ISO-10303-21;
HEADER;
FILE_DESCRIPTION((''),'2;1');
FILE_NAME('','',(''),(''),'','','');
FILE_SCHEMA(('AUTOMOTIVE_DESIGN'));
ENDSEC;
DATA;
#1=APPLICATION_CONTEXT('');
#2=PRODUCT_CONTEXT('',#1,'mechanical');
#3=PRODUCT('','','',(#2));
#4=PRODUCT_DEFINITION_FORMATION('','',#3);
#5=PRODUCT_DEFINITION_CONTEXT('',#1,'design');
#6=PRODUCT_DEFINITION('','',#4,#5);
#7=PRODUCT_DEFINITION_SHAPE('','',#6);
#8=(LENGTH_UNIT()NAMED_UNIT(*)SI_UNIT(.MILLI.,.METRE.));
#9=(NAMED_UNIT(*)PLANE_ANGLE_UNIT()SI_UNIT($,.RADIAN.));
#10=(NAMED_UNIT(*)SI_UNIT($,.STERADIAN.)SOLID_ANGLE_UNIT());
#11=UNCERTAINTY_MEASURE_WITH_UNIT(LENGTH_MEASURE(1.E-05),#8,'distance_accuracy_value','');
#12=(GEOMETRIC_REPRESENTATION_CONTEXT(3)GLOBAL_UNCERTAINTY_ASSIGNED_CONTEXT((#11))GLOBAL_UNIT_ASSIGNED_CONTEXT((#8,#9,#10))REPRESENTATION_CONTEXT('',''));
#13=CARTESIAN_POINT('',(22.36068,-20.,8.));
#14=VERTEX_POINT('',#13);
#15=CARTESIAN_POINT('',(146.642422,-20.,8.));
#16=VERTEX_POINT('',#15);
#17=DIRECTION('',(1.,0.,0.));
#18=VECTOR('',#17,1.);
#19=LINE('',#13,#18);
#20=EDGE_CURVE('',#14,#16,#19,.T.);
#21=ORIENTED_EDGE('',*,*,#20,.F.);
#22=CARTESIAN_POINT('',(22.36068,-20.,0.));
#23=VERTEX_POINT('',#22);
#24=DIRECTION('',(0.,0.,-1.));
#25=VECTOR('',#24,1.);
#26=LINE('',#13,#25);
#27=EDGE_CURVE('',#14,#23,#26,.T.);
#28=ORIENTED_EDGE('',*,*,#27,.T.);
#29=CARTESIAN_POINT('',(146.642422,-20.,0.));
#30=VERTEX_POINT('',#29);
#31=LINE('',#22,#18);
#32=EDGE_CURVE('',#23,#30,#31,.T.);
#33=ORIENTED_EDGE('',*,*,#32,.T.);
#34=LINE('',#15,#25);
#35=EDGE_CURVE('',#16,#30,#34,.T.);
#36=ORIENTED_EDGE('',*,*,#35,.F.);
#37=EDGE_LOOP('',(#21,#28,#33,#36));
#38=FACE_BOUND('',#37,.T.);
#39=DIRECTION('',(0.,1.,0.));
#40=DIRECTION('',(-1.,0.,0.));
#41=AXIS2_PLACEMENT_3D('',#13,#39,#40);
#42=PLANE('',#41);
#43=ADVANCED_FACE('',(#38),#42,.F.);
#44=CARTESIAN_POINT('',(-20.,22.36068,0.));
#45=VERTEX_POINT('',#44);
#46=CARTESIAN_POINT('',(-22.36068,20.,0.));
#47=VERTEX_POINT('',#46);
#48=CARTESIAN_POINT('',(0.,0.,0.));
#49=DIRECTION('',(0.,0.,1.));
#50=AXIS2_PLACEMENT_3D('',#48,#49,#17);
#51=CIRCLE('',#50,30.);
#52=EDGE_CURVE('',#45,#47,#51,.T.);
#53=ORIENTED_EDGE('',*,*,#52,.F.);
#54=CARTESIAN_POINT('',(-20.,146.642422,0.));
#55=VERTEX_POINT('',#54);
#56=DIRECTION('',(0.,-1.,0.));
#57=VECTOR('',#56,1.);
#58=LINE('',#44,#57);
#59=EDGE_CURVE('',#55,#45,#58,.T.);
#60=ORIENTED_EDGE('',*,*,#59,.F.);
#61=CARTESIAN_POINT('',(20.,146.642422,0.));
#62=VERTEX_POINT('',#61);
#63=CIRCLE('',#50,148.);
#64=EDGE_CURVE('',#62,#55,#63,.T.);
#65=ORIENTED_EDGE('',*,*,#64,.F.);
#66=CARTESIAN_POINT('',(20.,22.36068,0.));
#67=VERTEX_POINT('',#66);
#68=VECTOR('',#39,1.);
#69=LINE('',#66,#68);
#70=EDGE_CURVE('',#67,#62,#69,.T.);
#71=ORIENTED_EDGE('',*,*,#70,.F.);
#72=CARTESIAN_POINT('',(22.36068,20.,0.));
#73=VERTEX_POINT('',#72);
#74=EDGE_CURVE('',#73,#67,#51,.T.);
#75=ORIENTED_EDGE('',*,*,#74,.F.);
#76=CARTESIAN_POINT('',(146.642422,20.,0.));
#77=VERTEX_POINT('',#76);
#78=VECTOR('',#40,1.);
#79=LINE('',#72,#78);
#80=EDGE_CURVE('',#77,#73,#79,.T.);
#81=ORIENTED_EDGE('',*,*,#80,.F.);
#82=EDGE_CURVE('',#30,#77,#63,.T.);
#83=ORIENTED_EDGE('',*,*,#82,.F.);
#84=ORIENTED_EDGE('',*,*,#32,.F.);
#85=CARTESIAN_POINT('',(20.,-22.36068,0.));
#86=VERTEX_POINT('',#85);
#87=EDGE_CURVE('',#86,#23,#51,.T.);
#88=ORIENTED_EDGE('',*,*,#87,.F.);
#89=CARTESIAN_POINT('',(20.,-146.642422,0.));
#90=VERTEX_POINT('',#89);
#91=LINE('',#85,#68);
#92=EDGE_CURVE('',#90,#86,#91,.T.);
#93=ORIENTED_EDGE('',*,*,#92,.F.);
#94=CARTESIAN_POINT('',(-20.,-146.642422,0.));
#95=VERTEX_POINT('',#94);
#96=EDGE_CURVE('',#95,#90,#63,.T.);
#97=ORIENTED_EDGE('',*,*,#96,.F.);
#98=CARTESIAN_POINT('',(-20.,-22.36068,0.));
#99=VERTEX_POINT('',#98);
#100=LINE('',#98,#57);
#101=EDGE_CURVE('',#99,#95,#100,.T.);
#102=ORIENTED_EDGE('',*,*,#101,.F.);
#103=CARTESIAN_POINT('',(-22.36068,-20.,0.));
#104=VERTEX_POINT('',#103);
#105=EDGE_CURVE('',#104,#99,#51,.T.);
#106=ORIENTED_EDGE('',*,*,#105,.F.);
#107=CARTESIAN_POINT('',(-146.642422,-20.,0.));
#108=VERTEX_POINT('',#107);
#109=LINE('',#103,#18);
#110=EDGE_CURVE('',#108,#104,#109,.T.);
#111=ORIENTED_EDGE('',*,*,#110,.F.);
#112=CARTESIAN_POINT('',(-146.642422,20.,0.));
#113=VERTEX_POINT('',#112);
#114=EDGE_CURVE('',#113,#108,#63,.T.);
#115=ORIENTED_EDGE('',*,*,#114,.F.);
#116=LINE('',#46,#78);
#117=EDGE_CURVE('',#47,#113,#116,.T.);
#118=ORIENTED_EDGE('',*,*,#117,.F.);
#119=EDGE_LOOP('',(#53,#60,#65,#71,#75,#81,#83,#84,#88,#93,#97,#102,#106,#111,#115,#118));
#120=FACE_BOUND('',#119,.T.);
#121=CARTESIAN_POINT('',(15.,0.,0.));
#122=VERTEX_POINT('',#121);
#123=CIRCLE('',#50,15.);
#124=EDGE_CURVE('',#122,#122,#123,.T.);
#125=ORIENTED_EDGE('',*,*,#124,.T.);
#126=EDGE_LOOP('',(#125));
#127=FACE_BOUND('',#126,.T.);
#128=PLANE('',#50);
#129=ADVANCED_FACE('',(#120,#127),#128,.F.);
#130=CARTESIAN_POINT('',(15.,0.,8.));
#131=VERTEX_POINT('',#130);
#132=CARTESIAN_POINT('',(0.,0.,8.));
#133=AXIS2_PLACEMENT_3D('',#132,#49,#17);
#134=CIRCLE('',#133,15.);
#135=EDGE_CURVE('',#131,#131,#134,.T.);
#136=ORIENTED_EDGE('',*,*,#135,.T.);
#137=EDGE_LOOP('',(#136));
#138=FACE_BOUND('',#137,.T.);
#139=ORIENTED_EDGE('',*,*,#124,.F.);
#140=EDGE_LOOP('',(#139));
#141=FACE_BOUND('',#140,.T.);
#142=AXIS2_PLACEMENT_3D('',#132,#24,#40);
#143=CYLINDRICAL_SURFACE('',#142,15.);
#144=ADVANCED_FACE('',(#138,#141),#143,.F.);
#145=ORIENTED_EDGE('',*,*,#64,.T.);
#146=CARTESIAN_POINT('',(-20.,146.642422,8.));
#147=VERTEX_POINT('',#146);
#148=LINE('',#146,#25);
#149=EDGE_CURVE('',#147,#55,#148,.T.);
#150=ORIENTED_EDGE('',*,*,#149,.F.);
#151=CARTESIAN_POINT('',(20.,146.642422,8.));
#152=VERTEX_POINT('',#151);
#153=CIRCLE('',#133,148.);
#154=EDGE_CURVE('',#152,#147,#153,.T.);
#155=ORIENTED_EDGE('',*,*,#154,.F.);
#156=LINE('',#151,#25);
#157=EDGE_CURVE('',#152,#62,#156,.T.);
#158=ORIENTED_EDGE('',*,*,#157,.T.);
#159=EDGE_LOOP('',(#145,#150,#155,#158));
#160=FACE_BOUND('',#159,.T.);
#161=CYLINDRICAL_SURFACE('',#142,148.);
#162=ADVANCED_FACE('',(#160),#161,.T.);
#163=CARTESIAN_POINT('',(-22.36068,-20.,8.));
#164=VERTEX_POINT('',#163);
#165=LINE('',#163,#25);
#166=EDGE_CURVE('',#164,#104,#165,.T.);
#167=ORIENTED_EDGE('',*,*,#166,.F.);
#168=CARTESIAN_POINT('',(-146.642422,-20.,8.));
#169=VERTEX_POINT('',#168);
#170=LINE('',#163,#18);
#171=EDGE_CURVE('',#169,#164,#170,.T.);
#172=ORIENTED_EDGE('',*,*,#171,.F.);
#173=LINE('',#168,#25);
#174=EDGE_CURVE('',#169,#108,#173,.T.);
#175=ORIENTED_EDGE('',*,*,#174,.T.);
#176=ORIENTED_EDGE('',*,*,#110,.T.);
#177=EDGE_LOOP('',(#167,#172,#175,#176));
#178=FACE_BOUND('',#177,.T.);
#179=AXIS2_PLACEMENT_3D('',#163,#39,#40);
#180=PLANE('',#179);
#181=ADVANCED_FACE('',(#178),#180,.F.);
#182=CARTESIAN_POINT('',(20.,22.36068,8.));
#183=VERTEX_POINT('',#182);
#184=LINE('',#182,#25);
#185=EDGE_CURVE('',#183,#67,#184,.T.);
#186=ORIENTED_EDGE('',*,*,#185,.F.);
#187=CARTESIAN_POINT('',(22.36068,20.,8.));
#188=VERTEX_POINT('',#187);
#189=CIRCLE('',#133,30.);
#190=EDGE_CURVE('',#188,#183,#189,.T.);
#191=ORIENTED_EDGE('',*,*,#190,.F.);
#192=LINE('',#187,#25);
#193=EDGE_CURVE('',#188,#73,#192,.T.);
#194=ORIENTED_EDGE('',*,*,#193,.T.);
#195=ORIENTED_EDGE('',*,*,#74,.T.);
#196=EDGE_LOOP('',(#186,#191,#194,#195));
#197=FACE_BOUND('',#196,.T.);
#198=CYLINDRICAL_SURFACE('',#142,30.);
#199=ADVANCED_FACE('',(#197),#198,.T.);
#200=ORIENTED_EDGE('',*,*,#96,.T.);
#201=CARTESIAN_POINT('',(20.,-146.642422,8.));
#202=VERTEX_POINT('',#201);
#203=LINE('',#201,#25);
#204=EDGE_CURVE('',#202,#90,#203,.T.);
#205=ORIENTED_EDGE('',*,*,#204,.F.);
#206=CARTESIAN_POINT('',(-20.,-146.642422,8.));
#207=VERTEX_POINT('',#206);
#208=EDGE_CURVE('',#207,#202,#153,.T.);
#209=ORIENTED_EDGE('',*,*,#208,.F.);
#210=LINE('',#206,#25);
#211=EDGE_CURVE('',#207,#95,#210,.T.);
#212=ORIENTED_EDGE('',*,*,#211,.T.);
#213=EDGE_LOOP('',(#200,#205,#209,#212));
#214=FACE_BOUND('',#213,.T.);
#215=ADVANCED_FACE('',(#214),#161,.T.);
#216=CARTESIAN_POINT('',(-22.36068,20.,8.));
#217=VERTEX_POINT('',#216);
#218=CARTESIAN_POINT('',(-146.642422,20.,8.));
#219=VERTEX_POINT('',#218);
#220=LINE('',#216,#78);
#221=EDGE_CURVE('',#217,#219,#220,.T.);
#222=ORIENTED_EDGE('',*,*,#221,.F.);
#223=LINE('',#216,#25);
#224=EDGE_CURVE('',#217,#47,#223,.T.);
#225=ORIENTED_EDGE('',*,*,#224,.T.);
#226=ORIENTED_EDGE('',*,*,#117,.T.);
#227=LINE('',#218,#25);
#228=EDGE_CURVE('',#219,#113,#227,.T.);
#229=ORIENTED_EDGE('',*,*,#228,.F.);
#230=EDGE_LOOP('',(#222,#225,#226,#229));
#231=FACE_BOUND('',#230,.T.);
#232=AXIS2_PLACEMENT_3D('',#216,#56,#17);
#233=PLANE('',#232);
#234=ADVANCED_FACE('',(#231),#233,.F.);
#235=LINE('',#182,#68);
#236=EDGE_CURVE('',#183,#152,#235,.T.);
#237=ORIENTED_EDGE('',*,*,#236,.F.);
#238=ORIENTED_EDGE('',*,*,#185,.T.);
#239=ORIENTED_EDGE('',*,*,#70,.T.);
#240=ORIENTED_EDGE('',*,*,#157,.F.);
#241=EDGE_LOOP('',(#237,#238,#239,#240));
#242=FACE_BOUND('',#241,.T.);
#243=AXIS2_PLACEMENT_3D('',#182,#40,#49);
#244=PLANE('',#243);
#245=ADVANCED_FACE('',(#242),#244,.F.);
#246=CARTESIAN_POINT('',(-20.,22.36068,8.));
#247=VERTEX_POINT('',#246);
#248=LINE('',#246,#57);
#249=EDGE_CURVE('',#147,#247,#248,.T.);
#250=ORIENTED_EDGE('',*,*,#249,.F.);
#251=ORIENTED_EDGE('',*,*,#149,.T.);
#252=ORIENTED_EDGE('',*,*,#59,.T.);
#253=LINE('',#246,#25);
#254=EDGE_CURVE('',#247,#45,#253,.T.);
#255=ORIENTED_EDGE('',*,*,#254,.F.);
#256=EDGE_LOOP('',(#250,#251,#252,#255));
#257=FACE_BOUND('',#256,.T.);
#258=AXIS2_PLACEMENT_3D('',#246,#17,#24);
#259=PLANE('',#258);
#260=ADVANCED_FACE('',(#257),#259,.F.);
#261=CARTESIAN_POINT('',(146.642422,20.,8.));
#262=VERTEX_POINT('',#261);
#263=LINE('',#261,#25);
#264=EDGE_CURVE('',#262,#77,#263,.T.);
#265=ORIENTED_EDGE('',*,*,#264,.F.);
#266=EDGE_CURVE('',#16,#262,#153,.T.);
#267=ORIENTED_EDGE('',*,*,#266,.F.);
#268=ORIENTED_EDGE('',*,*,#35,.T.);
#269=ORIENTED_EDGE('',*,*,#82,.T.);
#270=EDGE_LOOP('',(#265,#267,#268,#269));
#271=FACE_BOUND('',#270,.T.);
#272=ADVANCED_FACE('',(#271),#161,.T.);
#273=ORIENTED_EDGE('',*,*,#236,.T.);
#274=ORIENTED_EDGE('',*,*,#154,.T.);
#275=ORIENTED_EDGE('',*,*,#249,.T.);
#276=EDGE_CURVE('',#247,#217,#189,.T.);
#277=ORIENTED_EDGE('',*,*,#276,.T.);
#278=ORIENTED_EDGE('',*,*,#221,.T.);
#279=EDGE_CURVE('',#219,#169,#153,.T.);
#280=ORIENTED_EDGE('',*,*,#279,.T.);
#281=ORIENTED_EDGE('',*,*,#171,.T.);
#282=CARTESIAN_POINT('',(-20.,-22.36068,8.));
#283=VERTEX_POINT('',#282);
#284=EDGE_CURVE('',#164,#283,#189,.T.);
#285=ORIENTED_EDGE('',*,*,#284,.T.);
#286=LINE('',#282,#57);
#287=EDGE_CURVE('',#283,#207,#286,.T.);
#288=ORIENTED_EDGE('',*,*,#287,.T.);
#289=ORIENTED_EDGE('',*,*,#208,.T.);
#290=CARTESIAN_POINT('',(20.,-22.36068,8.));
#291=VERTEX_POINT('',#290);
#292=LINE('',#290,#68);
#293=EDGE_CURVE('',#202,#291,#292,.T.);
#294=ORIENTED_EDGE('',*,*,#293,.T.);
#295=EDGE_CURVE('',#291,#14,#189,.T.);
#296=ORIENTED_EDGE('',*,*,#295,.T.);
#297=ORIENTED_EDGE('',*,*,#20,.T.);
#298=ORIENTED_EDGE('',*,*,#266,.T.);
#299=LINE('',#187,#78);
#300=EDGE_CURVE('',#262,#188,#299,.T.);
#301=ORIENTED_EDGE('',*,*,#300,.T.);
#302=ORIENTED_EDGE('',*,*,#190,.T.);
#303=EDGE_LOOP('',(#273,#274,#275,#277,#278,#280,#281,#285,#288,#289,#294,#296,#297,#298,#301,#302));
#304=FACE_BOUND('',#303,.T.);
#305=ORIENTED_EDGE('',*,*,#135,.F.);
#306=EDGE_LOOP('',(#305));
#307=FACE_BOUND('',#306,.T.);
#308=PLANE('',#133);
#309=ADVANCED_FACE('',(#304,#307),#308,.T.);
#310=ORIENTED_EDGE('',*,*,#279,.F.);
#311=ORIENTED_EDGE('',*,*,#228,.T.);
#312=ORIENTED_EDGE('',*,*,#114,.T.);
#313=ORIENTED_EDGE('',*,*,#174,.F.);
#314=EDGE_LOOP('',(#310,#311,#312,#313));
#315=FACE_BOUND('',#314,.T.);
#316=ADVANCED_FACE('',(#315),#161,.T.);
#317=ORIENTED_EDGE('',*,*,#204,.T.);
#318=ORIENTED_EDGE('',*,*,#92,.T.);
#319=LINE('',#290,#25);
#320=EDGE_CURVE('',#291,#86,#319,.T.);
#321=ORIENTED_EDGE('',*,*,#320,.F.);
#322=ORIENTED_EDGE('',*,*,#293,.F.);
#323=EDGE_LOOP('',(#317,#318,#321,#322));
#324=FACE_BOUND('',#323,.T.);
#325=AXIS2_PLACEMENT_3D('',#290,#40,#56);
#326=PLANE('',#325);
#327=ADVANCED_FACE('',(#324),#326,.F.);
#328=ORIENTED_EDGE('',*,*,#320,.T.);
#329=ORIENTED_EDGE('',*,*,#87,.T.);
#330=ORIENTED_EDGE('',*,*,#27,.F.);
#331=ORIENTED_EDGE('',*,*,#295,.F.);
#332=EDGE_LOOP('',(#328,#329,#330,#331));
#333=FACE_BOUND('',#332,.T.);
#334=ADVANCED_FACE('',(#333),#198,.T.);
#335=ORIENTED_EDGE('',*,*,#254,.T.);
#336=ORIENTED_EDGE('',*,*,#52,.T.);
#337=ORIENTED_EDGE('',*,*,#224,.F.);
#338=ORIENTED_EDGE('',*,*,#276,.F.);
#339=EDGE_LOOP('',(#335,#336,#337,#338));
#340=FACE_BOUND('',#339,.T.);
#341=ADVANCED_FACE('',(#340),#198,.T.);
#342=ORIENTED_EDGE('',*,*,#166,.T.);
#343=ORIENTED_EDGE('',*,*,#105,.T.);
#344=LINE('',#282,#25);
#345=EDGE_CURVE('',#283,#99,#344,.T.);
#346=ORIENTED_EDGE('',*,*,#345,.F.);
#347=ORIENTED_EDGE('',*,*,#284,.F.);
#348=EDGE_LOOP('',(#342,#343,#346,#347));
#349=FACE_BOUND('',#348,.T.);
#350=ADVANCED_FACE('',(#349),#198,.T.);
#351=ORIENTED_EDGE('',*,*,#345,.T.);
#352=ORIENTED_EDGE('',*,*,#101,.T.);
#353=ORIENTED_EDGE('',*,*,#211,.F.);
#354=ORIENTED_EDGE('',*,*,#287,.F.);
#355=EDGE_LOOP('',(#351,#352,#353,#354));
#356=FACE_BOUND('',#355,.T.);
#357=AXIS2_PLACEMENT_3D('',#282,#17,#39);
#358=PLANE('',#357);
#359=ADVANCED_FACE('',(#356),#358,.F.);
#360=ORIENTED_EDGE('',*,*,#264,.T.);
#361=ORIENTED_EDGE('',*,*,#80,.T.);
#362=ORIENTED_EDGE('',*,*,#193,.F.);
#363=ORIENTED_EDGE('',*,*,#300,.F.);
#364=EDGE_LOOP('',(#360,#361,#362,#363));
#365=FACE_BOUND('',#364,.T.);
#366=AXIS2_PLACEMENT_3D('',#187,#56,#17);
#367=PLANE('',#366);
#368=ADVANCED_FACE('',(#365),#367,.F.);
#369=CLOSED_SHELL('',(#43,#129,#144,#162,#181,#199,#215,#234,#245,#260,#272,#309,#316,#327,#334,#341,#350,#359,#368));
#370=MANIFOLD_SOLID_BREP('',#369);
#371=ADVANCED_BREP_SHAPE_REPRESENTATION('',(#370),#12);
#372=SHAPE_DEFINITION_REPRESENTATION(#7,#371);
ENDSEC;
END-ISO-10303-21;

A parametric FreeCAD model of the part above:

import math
import FreeCAD as App
import Part
import Sketcher
from FreeCAD import Vector
Q = App.Units.Quantity

doc = App.newDocument("Part")
body = doc.addObject("PartDesign::Body", "Body")

# Sketch on XY plane
sketch1 = doc.addObject("Sketcher::SketchObject", "Sketch")
body.addObject(sketch1)
sketch1.AttachmentSupport = (doc.XY_Plane, [""])
sketch1.MapMode = "FlatFace"
sketch1.addGeometry(Part.LineSegment(Vector(20, 22.4, 0), Vector(20, 146.6, 0)), False)
sketch1.addGeometry(Part.ArcOfCircle(Part.Circle(Vector(0, 0, 0), Vector(0, 0, 1), 148), math.radians(82.23), math.radians(97.77)), False)
sketch1.addGeometry(Part.LineSegment(Vector(-20, 146.6, 0), Vector(-20, 22.4, 0)), False)
sketch1.addGeometry(Part.ArcOfCircle(Part.Circle(Vector(0, 0, 0), Vector(0, 0, 1), 30), math.radians(131.81), math.radians(138.19)), False)
sketch1.addGeometry(Part.LineSegment(Vector(-22.4, 20, 0), Vector(-146.6, 20, 0)), False)
sketch1.addGeometry(Part.ArcOfCircle(Part.Circle(Vector(0, 0, 0), Vector(0, 0, 1), 148), math.radians(172.23), math.radians(187.77)), False)
sketch1.addGeometry(Part.LineSegment(Vector(-146.6, -20, 0), Vector(-22.4, -20, 0)), False)
sketch1.addGeometry(Part.ArcOfCircle(Part.Circle(Vector(0, 0, 0), Vector(0, 0, 1), 30), math.radians(-138.19), math.radians(-131.81)), False)
sketch1.addGeometry(Part.LineSegment(Vector(-20, -22.4, 0), Vector(-20, -146.6, 0)), False)
sketch1.addGeometry(Part.ArcOfCircle(Part.Circle(Vector(0, 0, 0), Vector(0, 0, 1), 148), math.radians(-97.77), math.radians(-82.23)), False)
sketch1.addGeometry(Part.LineSegment(Vector(20, -146.6, 0), Vector(20, -22.4, 0)), False)
sketch1.addGeometry(Part.ArcOfCircle(Part.Circle(Vector(0, 0, 0), Vector(0, 0, 1), 30), math.radians(-48.19), math.radians(-41.81)), False)
sketch1.addGeometry(Part.LineSegment(Vector(22.4, -20, 0), Vector(146.6, -20, 0)), False)
sketch1.addGeometry(Part.ArcOfCircle(Part.Circle(Vector(0, 0, 0), Vector(0, 0, 1), 148), math.radians(-7.77), math.radians(7.77)), False)
sketch1.addGeometry(Part.LineSegment(Vector(146.6, 20, 0), Vector(22.4, 20, 0)), False)
sketch1.addGeometry(Part.ArcOfCircle(Part.Circle(Vector(0, 0, 0), Vector(0, 0, 1), 30), math.radians(41.81), math.radians(48.19)), False)
sketch1.addGeometry(Part.Circle(Vector(0, 0, 0), Vector(0, 0, 1), 15), False)
sketch1.addConstraint(Sketcher.Constraint("Coincident", 0, 2, 1, 1))
sketch1.addConstraint(Sketcher.Constraint("Coincident", 1, 2, 2, 1))
sketch1.addConstraint(Sketcher.Constraint("Coincident", 2, 2, 3, 1))
sketch1.addConstraint(Sketcher.Constraint("Coincident", 3, 2, 4, 1))
sketch1.addConstraint(Sketcher.Constraint("Coincident", 4, 2, 5, 1))
sketch1.addConstraint(Sketcher.Constraint("Coincident", 5, 2, 6, 1))
sketch1.addConstraint(Sketcher.Constraint("Coincident", 6, 2, 7, 1))
sketch1.addConstraint(Sketcher.Constraint("Coincident", 7, 2, 8, 1))
sketch1.addConstraint(Sketcher.Constraint("Coincident", 8, 2, 9, 1))
sketch1.addConstraint(Sketcher.Constraint("Coincident", 9, 2, 10, 1))
sketch1.addConstraint(Sketcher.Constraint("Coincident", 10, 2, 11, 1))
sketch1.addConstraint(Sketcher.Constraint("Coincident", 11, 2, 12, 1))
sketch1.addConstraint(Sketcher.Constraint("Coincident", 12, 2, 13, 1))
sketch1.addConstraint(Sketcher.Constraint("Coincident", 13, 2, 14, 1))
sketch1.addConstraint(Sketcher.Constraint("Coincident", 14, 2, 15, 1))
sketch1.addConstraint(Sketcher.Constraint("Coincident", 15, 2, 0, 1))
sketch1.addConstraint(Sketcher.Constraint("Vertical", 0))
sketch1.addConstraint(Sketcher.Constraint("Vertical", 2))
sketch1.addConstraint(Sketcher.Constraint("Horizontal", 4))
sketch1.addConstraint(Sketcher.Constraint("Horizontal", 6))
sketch1.addConstraint(Sketcher.Constraint("Vertical", 8))
sketch1.addConstraint(Sketcher.Constraint("Vertical", 10))
sketch1.addConstraint(Sketcher.Constraint("Horizontal", 12))
sketch1.addConstraint(Sketcher.Constraint("Horizontal", 14))
sketch1.addConstraint(Sketcher.Constraint("Coincident", 1, 3, -1, 1))
sketch1.addConstraint(Sketcher.Constraint("Coincident", 3, 3, -1, 1))
sketch1.addConstraint(Sketcher.Constraint("Coincident", 5, 3, -1, 1))
sketch1.addConstraint(Sketcher.Constraint("Coincident", 7, 3, -1, 1))
sketch1.addConstraint(Sketcher.Constraint("Coincident", 9, 3, -1, 1))
sketch1.addConstraint(Sketcher.Constraint("Coincident", 11, 3, -1, 1))
sketch1.addConstraint(Sketcher.Constraint("Coincident", 13, 3, -1, 1))
sketch1.addConstraint(Sketcher.Constraint("Coincident", 15, 3, -1, 1))
sketch1.addConstraint(Sketcher.Constraint("Coincident", 16, 3, -1, 1))
sketch1.addConstraint(Sketcher.Constraint("Equal", 1, 5))
sketch1.addConstraint(Sketcher.Constraint("Equal", 3, 7))
sketch1.addConstraint(Sketcher.Constraint("Equal", 5, 9))
sketch1.addConstraint(Sketcher.Constraint("Equal", 7, 11))
sketch1.addConstraint(Sketcher.Constraint("Equal", 9, 13))
sketch1.addConstraint(Sketcher.Constraint("Equal", 11, 15))
sketch1.addConstraint(Sketcher.Constraint("Horizontal", 0, 2, 1, 2))
sketch1.addConstraint(Sketcher.Constraint("Horizontal", 8, 2, 9, 2))
sketch1.addConstraint(Sketcher.Constraint("Horizontal", 6, 2, 11, 2))
sketch1.addConstraint(Sketcher.Constraint("Horizontal", 4, 2, 13, 2))
sketch1.addConstraint(Sketcher.Constraint("Vertical", 4, 2, 5, 2))
sketch1.addConstraint(Sketcher.Constraint("Vertical", 2, 2, 7, 2))
sketch1.addConstraint(Sketcher.Constraint("Equal", 14, 0))
sketch1.addConstraint(Sketcher.Constraint("Diameter", 16, Q("30 mm")))
sketch1.addConstraint(Sketcher.Constraint("Radius", 1, Q("148 mm")))
sketch1.addConstraint(Sketcher.Constraint("Radius", 3, Q("30 mm")))
sketch1.addConstraint(Sketcher.Constraint("DistanceX", -1, 1, 0, 2, Q("20 mm")))
pad1 = doc.addObject("PartDesign::Pad", "Pad")
body.addObject(pad1)
pad1.Profile = sketch1
pad1.Length = 8

doc.recompute()
